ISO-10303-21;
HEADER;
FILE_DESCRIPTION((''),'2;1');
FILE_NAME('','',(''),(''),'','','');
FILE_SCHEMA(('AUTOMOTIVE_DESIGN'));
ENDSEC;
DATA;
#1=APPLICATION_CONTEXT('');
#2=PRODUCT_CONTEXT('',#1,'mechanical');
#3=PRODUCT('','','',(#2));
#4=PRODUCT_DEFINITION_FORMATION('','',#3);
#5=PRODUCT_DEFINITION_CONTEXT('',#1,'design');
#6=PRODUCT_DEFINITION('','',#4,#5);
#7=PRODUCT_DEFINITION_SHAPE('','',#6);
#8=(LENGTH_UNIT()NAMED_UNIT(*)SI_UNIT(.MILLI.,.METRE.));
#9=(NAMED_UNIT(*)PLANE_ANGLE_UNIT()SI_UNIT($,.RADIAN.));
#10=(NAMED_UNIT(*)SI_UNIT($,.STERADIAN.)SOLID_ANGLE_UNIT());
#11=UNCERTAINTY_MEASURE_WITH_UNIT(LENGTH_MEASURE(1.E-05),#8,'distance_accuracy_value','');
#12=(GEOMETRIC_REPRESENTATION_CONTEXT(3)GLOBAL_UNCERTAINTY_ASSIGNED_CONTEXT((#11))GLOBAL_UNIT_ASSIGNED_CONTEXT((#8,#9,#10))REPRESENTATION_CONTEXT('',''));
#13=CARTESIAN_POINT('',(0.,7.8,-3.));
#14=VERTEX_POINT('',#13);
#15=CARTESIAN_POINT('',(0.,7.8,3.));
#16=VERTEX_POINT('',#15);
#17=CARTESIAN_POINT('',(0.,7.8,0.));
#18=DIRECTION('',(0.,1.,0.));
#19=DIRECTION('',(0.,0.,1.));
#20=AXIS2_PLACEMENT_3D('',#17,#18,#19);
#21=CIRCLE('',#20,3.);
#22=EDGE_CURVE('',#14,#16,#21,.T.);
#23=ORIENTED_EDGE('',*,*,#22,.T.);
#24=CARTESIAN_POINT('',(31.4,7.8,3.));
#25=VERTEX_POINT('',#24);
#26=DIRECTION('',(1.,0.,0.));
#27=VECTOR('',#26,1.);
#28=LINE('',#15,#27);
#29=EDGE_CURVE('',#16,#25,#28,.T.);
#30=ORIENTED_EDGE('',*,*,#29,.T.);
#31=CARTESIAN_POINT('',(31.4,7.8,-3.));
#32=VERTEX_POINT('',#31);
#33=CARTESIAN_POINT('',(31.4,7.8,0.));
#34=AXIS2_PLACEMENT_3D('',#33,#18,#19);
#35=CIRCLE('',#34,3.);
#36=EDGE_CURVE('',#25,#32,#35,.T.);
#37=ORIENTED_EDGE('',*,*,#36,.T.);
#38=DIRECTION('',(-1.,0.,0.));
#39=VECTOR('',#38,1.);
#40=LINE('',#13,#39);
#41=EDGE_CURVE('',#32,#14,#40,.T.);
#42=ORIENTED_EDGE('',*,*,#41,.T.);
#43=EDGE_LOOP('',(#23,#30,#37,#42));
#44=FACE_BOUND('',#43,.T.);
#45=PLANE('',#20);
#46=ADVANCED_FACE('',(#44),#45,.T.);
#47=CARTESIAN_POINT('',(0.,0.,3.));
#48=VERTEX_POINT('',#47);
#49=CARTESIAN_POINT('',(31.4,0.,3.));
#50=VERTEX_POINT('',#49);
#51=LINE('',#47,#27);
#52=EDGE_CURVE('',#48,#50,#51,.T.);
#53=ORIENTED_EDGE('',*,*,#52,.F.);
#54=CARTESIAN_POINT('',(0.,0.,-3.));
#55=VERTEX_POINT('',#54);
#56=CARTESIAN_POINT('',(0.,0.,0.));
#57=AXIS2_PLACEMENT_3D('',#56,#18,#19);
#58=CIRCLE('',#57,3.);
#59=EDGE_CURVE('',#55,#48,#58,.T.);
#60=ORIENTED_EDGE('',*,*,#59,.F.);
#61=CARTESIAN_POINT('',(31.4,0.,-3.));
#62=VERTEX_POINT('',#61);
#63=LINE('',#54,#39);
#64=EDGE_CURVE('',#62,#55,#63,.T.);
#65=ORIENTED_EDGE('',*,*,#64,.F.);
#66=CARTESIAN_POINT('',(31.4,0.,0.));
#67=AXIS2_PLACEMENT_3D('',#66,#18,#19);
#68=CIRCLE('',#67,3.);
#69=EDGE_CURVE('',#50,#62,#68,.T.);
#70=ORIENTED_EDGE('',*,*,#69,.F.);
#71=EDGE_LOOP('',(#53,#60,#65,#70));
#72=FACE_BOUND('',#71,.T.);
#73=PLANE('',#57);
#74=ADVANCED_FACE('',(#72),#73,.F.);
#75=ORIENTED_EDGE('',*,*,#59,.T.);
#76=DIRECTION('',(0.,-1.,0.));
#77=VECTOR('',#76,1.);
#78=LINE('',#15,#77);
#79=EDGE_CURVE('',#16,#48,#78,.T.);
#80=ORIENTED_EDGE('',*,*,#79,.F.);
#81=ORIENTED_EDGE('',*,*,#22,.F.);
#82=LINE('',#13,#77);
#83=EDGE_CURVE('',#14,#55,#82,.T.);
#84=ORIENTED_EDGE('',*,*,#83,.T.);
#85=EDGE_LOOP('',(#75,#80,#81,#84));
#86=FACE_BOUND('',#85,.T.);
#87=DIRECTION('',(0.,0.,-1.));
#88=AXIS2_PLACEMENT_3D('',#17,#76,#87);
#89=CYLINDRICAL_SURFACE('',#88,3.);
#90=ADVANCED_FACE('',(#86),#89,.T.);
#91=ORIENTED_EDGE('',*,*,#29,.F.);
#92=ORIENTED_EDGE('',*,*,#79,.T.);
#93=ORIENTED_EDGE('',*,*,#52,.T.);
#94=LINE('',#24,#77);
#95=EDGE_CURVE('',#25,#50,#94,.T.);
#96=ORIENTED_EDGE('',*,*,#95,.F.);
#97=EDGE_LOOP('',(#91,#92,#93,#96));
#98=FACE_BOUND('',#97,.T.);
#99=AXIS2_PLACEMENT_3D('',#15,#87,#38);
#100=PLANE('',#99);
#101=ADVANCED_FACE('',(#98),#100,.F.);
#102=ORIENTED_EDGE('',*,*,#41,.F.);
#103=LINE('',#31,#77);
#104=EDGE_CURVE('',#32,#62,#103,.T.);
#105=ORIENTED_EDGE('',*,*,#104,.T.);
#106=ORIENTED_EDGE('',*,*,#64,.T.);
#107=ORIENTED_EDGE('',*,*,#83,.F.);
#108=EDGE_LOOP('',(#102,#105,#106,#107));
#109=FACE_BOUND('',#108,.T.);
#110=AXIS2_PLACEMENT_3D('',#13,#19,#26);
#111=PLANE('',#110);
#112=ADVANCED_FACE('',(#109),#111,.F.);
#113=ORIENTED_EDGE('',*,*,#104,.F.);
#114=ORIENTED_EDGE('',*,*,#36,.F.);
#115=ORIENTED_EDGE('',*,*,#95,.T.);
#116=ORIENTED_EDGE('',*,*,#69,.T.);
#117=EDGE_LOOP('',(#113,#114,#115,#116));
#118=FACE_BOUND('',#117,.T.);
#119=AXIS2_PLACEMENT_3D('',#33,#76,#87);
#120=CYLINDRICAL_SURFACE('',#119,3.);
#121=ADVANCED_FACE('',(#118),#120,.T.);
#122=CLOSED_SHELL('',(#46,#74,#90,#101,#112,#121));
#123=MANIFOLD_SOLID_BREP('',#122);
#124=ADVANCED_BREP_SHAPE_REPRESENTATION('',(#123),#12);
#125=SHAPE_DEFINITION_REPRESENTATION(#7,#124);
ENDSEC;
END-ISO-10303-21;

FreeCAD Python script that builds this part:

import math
import FreeCAD as App
import Part
import Sketcher
from FreeCAD import Vector

doc = App.newDocument("Part")
body = doc.addObject("PartDesign::Body", "Body")

sketch1 = body.newObject("Sketcher::SketchObject", "Sketch")
sketch1.AttachmentSupport = (doc.getObject("XZ_Plane"), [""])
sketch1.MapMode = "FlatFace"
sketch1.addGeometry([
    Part.LineSegment(Vector(31.4, -3, 0), Vector(0, -3, 0)),
    Part.ArcOfCircle(Part.Circle(Vector(0, 0, 0), Vector(0, 0, 1), 3), math.radians(90), math.radians(270)),
    Part.LineSegment(Vector(0, 3, 0), Vector(31.4, 3, 0)),
    Part.ArcOfCircle(Part.Circle(Vector(31.4, 0, 0), Vector(0, 0, 1), 3), math.radians(-90), math.radians(90)),
], False)
sketch1.addConstraint([
    Sketcher.Constraint("Tangent", 0, 2, 1, 2),
    Sketcher.Constraint("Tangent", 1, 1, 2, 1),
    Sketcher.Constraint("Tangent", 2, 2, 3, 2),
    Sketcher.Constraint("Tangent", 3, 1, 0, 1),
    Sketcher.Constraint("Horizontal", 0),
    Sketcher.Constraint("Horizontal", 2),
    Sketcher.Constraint("Coincident", 1, 3, -1, 1),
    Sketcher.Constraint("Radius", 1, 3.0),
    Sketcher.Constraint("DistanceX", 0, 2, 0, 1, 31.4),
])
pad1 = body.newObject("PartDesign::Pad", "Pad")
pad1.Profile = sketch1
pad1.Length = 7.8
pad1.Reversed = True

doc.recompute()
